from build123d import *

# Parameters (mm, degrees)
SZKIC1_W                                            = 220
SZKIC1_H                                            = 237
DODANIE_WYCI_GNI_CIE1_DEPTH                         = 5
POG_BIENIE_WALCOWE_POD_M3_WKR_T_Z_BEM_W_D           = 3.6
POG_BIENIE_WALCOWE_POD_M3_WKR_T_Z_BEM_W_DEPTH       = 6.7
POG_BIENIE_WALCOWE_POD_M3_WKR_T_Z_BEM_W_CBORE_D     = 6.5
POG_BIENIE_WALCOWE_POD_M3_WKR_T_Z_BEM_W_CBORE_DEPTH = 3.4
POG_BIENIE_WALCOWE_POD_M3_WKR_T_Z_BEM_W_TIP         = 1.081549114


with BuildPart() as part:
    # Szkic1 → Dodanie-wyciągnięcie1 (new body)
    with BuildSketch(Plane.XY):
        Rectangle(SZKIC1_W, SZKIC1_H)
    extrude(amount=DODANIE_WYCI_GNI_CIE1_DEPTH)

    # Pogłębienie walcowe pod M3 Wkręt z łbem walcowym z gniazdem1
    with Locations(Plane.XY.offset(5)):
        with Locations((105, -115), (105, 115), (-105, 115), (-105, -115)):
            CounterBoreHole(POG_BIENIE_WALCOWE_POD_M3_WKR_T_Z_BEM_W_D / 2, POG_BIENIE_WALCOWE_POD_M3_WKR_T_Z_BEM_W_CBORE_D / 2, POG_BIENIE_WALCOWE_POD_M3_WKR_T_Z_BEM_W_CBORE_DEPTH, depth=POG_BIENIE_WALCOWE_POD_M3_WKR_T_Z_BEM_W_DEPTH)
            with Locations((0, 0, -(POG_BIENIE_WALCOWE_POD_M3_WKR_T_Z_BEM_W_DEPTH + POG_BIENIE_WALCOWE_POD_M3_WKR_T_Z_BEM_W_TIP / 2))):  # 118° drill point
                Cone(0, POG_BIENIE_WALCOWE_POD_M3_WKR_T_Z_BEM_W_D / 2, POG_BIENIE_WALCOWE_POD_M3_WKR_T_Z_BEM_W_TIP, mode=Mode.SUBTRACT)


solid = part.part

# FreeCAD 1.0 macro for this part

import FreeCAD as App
import Part
import Sketcher
from FreeCAD import Vector

doc = App.newDocument("Part")
params = doc.addObject("Spreadsheet::Sheet", "Params")
for row, (alias, value) in enumerate([
    ("sketch1_width", "220 mm"),
    ("sketch1_height", "237 mm"),
    ("pad1_length", "5 mm"),
    ("sketch2_diameter", "3.6 mm"),
    ("hole_diameter", "3.6 mm"),
    ("hole_depth", "6.7 mm"),
    ("hole_cbore_diameter", "6.5 mm"),
    ("hole_cbore_depth", "3.4 mm"),
], start=1):
    params.set(f"A{row}", alias)
    params.set(f"B{row}", "=" + value)
    params.setAlias(f"B{row}", alias)

body = doc.addObject("PartDesign::Body", "Body")

# Sketch on XY plane
sketch1 = doc.addObject("Sketcher::SketchObject", "Sketch")
body.addObject(sketch1)
sketch1.AttachmentSupport = (doc.XY_Plane, [""])
sketch1.MapMode = "FlatFace"
sketch1.addGeometry([
    Part.LineSegment(Vector(-110, 118.5, 0), Vector(-110, -118.5, 0)),
    Part.LineSegment(Vector(-110, -118.5, 0), Vector(110, -118.5, 0)),
    Part.LineSegment(Vector(110, -118.5, 0), Vector(110, 118.5, 0)),
    Part.LineSegment(Vector(110, 118.5, 0), Vector(-110, 118.5, 0)),
], False)
sketch1.addConstraint([
    Sketcher.Constraint("Coincident", 0, 2, 1, 1),
    Sketcher.Constraint("Coincident", 1, 2, 2, 1),
    Sketcher.Constraint("Coincident", 2, 2, 3, 1),
    Sketcher.Constraint("Coincident", 3, 2, 0, 1),
    Sketcher.Constraint("Vertical", 0),
    Sketcher.Constraint("Horizontal", 1),
    Sketcher.Constraint("Vertical", 2),
    Sketcher.Constraint("Horizontal", 3),
    Sketcher.Constraint("Symmetric", 0, 2, 2, 2, -1, 1),
    Sketcher.Constraint("DistanceX", 1, 1, 1, 2, 220.0),
    Sketcher.Constraint("DistanceY", 0, 2, 0, 1, 237.0),
])
sketch1.setExpression("Constraints[9]", "Params.sketch1_width")
sketch1.setExpression("Constraints[10]", "Params.sketch1_height")
pad1 = doc.addObject("PartDesign::Pad", "Pad")
body.addObject(pad1)
pad1.Profile = sketch1
pad1.setExpression("Length", "Params.pad1_length")

# Sketch on XY plane
sketch2 = doc.addObject("Sketcher::SketchObject", "Sketch001")
body.addObject(sketch2)
sketch2.AttachmentSupport = (doc.XY_Plane, [""])
sketch2.MapMode = "FlatFace"
sketch2.AttachmentOffset = App.Placement(Vector(0, 0, 5), App.Rotation())
sketch2.addGeometry([
    Part.Circle(Vector(105, -115, 0), Vector(0, 0, 1), 1.8),
    Part.Circle(Vector(105, 115, 0), Vector(0, 0, 1), 1.8),
    Part.Circle(Vector(-105, 115, 0), Vector(0, 0, 1), 1.8),
    Part.Circle(Vector(-105, -115, 0), Vector(0, 0, 1), 1.8),
], False)
sketch2.addConstraint([
    Sketcher.Constraint("Equal", 0, 1),
    Sketcher.Constraint("Equal", 1, 2),
    Sketcher.Constraint("Equal", 2, 3),
    Sketcher.Constraint("Symmetric", 0, 3, 2, 3, -1, 1),
    Sketcher.Constraint("Symmetric", 1, 3, 3, 3, -1, 1),
    Sketcher.Constraint("Symmetric", 1, 3, 2, 3, -2),
    Sketcher.Constraint("Diameter", 0, 3.6),
    Sketcher.Constraint("DistanceX", -1, 1, 0, 3, 105.0),
    Sketcher.Constraint("DistanceY", 0, 3, -1, 1, 115.0),
])
sketch2.setExpression("Constraints[6]", "Params.sketch2_diameter")
doc.recompute()
hole = doc.addObject("PartDesign::Hole", "Hole")
body.addObject(hole)
hole.Profile = sketch2
hole.ThreadType = "None"
hole.setExpression("Diameter", "Params.hole_diameter")
hole.DepthType = "Dimension"
hole.setExpression("Depth", "Params.hole_depth")
hole.DrillPoint = "Angled"
hole.DrillPointAngle = 118
hole.HoleCutType = "Counterbore"
hole.setExpression("HoleCutDiameter", "Params.hole_cbore_diameter")
hole.setExpression("HoleCutDepth", "Params.hole_cbore_depth")

doc.recompute()
